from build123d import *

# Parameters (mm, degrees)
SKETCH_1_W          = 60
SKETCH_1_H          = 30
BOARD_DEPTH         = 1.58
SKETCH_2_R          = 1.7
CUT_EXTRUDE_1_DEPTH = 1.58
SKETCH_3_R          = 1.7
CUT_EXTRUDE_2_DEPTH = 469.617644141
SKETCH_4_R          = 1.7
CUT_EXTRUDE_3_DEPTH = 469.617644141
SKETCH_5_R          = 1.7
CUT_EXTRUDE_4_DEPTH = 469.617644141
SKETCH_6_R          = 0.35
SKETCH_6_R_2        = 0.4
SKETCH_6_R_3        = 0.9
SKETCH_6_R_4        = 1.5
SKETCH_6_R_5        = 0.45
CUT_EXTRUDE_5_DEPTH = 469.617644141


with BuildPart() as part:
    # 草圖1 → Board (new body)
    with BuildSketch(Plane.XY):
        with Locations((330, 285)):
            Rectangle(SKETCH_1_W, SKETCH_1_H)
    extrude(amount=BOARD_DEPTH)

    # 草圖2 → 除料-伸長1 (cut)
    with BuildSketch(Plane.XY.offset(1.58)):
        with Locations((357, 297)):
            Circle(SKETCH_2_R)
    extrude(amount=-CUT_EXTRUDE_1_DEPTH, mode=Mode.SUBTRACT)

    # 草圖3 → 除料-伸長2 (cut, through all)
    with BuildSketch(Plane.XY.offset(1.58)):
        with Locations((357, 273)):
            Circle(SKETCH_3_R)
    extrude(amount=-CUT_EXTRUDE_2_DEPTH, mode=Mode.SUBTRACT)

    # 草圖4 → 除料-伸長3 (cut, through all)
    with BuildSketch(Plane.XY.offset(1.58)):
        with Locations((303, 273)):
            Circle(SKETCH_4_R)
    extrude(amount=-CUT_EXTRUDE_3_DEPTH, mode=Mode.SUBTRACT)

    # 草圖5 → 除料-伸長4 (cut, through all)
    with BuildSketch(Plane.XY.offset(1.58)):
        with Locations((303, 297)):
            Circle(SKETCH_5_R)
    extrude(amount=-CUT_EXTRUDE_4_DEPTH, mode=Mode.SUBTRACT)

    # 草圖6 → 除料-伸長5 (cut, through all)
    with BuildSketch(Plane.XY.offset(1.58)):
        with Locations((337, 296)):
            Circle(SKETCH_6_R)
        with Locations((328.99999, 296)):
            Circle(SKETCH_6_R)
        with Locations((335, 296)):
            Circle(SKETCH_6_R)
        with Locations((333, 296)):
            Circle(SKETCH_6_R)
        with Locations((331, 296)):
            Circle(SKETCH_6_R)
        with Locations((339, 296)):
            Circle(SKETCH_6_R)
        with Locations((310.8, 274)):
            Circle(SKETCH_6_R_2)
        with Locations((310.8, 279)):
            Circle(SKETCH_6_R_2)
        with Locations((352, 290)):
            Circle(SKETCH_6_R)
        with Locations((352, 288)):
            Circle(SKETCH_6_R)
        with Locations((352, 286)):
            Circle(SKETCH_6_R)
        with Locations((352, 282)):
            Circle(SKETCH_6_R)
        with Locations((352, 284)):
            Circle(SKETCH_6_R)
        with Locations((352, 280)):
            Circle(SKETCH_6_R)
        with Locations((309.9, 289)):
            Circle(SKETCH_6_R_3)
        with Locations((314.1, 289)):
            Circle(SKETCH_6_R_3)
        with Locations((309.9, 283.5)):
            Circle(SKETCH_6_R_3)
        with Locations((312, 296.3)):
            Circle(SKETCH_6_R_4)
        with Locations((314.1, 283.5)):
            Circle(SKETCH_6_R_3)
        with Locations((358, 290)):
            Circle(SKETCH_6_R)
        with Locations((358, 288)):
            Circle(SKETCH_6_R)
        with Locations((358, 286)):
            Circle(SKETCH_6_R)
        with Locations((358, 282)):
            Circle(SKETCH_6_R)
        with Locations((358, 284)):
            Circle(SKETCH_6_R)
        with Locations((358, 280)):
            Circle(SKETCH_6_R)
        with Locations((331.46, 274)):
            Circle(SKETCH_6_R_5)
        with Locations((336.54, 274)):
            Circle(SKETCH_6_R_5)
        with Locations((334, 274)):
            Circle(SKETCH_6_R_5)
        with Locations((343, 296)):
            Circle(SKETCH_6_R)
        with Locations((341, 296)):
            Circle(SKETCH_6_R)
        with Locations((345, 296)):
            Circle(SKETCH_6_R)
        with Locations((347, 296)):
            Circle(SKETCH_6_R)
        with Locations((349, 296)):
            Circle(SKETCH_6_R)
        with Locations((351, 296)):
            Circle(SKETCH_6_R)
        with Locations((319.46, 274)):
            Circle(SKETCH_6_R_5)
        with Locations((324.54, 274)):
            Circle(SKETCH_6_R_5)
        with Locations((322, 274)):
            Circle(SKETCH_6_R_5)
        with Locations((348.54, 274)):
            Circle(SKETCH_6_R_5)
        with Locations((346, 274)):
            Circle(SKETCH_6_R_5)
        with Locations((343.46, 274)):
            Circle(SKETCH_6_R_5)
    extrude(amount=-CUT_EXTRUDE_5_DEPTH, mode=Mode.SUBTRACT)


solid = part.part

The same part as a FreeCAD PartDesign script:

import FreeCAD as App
import Part
import Sketcher
from FreeCAD import Vector
Q = App.Units.Quantity

doc = App.newDocument("Part")
params = doc.addObject("Spreadsheet::Sheet", "Params")
for row, (alias, value) in enumerate([
    ("sketch1_width", "60 mm"),
    ("sketch1_height", "30 mm"),
    ("pad1_length", "1.58 mm"),
    ("sketch2_diameter", "3.4 mm"),
    ("pocket1_length", "1.58 mm"),
    ("sketch3_diameter", "3.4 mm"),
    ("sketch4_diameter", "3.4 mm"),
    ("sketch5_diameter", "3.4 mm"),
    ("sketch6_diameter", "3 mm"),
    ("sketch6_diameter2", "0.7 mm"),
    ("sketch6_diameter3", "0.8 mm"),
    ("sketch6_diameter4", "1.8 mm"),
    ("sketch6_diameter5", "0.9 mm"),
], start=1):
    params.set(f"A{row}", alias)
    params.set(f"B{row}", "=" + value)
    params.setAlias(f"B{row}", alias)

body = doc.addObject("PartDesign::Body", "Body")

# Sketch on XY plane
sketch1 = doc.addObject("Sketcher::SketchObject", "Sketch")
body.addObject(sketch1)
sketch1.AttachmentSupport = (doc.XY_Plane, [""])
sketch1.MapMode = "FlatFace"
sketch1.addGeometry(Part.LineSegment(Vector(300, 300, 0), Vector(300, 270, 0)), False)
sketch1.addGeometry(Part.LineSegment(Vector(300, 270, 0), Vector(360, 270, 0)), False)
sketch1.addGeometry(Part.LineSegment(Vector(360, 270, 0), Vector(360, 300, 0)), False)
sketch1.addGeometry(Part.LineSegment(Vector(360, 300, 0), Vector(300, 300, 0)), False)
sketch1.addConstraint(Sketcher.Constraint("Coincident", 0, 2, 1, 1))
sketch1.addConstraint(Sketcher.Constraint("Coincident", 1, 2, 2, 1))
sketch1.addConstraint(Sketcher.Constraint("Coincident", 2, 2, 3, 1))
sketch1.addConstraint(Sketcher.Constraint("Coincident", 3, 2, 0, 1))
sketch1.addConstraint(Sketcher.Constraint("Vertical", 0))
sketch1.addConstraint(Sketcher.Constraint("Horizontal", 1))
sketch1.addConstraint(Sketcher.Constraint("Vertical", 2))
sketch1.addConstraint(Sketcher.Constraint("Horizontal", 3))
sketch1.addConstraint(Sketcher.Constraint("DistanceX", 1, 1, 1, 2, Q("60 mm")))
sketch1.addConstraint(Sketcher.Constraint("DistanceY", 0, 2, 0, 1, Q("30 mm")))
sketch1.addConstraint(Sketcher.Constraint("DistanceX", -1, 1, 0, 2, Q("300 mm")))
sketch1.addConstraint(Sketcher.Constraint("DistanceY", -1, 1, 0, 2, Q("270 mm")))
sketch1.setExpression("Constraints[8]", "Params.sketch1_width")
sketch1.setExpression("Constraints[9]", "Params.sketch1_height")
pad1 = doc.addObject("PartDesign::Pad", "Pad")
body.addObject(pad1)
pad1.Profile = sketch1
pad1.setExpression("Length", "Params.pad1_length")

# Sketch on XY plane
sketch2 = doc.addObject("Sketcher::SketchObject", "Sketch001")
body.addObject(sketch2)
sketch2.AttachmentSupport = (doc.XY_Plane, [""])
sketch2.MapMode = "FlatFace"
sketch2.AttachmentOffset = App.Placement(Vector(0, 0, 1.58), App.Rotation())
sketch2.addGeometry(Part.Circle(Vector(357, 297, 0), Vector(0, 0, 1), 1.7), False)
sketch2.addConstraint(Sketcher.Constraint("Diameter", 0, Q("3.4 mm")))
sketch2.addConstraint(Sketcher.Constraint("DistanceX", -1, 1, 0, 3, Q("357 mm")))
sketch2.addConstraint(Sketcher.Constraint("DistanceY", -1, 1, 0, 3, Q("297 mm")))
sketch2.setExpression("Constraints[0]", "Params.sketch2_diameter")
pocket1 = doc.addObject("PartDesign::Pocket", "Pocket")
body.addObject(pocket1)
pocket1.Profile = sketch2
pocket1.setExpression("Length", "Params.pocket1_length")

# Sketch on XY plane
sketch3 = doc.addObject("Sketcher::SketchObject", "Sketch002")
body.addObject(sketch3)
sketch3.AttachmentSupport = (doc.XY_Plane, [""])
sketch3.MapMode = "FlatFace"
sketch3.AttachmentOffset = App.Placement(Vector(0, 0, 1.58), App.Rotation())
sketch3.addGeometry(Part.Circle(Vector(357, 273, 0), Vector(0, 0, 1), 1.7), False)
sketch3.addConstraint(Sketcher.Constraint("Diameter", 0, Q("3.4 mm")))
sketch3.addConstraint(Sketcher.Constraint("DistanceX", -1, 1, 0, 3, Q("357 mm")))
sketch3.addConstraint(Sketcher.Constraint("DistanceY", -1, 1, 0, 3, Q("273 mm")))
sketch3.setExpression("Constraints[0]", "Params.sketch3_diameter")
pocket2 = doc.addObject("PartDesign::Pocket", "Pocket001")
body.addObject(pocket2)
pocket2.Profile = sketch3
pocket2.Type = "ThroughAll"

# Sketch on XY plane
sketch4 = doc.addObject("Sketcher::SketchObject", "Sketch003")
body.addObject(sketch4)
sketch4.AttachmentSupport = (doc.XY_Plane, [""])
sketch4.MapMode = "FlatFace"
sketch4.AttachmentOffset = App.Placement(Vector(0, 0, 1.58), App.Rotation())
sketch4.addGeometry(Part.Circle(Vector(303, 273, 0), Vector(0, 0, 1), 1.7), False)
sketch4.addConstraint(Sketcher.Constraint("Diameter", 0, Q("3.4 mm")))
sketch4.addConstraint(Sketcher.Constraint("DistanceX", -1, 1, 0, 3, Q("303 mm")))
sketch4.addConstraint(Sketcher.Constraint("DistanceY", -1, 1, 0, 3, Q("273 mm")))
sketch4.setExpression("Constraints[0]", "Params.sketch4_diameter")
pocket3 = doc.addObject("PartDesign::Pocket", "Pocket002")
body.addObject(pocket3)
pocket3.Profile = sketch4
pocket3.Type = "ThroughAll"

# Sketch on XY plane
sketch5 = doc.addObject("Sketcher::SketchObject", "Sketch004")
body.addObject(sketch5)
sketch5.AttachmentSupport = (doc.XY_Plane, [""])
sketch5.MapMode = "FlatFace"
sketch5.AttachmentOffset = App.Placement(Vector(0, 0, 1.58), App.Rotation())
sketch5.addGeometry(Part.Circle(Vector(303, 297, 0), Vector(0, 0, 1), 1.7), False)
sketch5.addConstraint(Sketcher.Constraint("Diameter", 0, Q("3.4 mm")))
sketch5.addConstraint(Sketcher.Constraint("DistanceX", -1, 1, 0, 3, Q("303 mm")))
sketch5.addConstraint(Sketcher.Constraint("DistanceY", -1, 1, 0, 3, Q("297 mm")))
sketch5.setExpression("Constraints[0]", "Params.sketch5_diameter")
pocket4 = doc.addObject("PartDesign::Pocket", "Pocket003")
body.addObject(pocket4)
pocket4.Profile = sketch5
pocket4.Type = "ThroughAll"

# Sketch on XY plane
sketch6 = doc.addObject("Sketcher::SketchObject", "Sketch005")
body.addObject(sketch6)
sketch6.AttachmentSupport = (doc.XY_Plane, [""])
sketch6.MapMode = "FlatFace"
sketch6.AttachmentOffset = App.Placement(Vector(0, 0, 1.58), App.Rotation())
sketch6.addGeometry(Part.Circle(Vector(337, 296, 0), Vector(0, 0, 1), 0.35), False)
sketch6.addGeometry(Part.Circle(Vector(328.99999, 296, 0), Vector(0, 0, 1), 0.35), False)
sketch6.addGeometry(Part.Circle(Vector(335, 296, 0), Vector(0, 0, 1), 0.35), False)
sketch6.addGeometry(Part.Circle(Vector(333, 296, 0), Vector(0, 0, 1), 0.35), False)
sketch6.addGeometry(Part.Circle(Vector(331, 296, 0), Vector(0, 0, 1), 0.35), False)
sketch6.addGeometry(Part.Circle(Vector(339, 296, 0), Vector(0, 0, 1), 0.35), False)
sketch6.addGeometry(Part.Circle(Vector(310.8, 274, 0), Vector(0, 0, 1), 0.4), False)
sketch6.addGeometry(Part.Circle(Vector(310.8, 279, 0), Vector(0, 0, 1), 0.4), False)
sketch6.addGeometry(Part.Circle(Vector(352, 290, 0), Vector(0, 0, 1), 0.35), False)
sketch6.addGeometry(Part.Circle(Vector(352, 288, 0), Vector(0, 0, 1), 0.35), False)
sketch6.addGeometry(Part.Circle(Vector(352, 286, 0), Vector(0, 0, 1), 0.35), False)
sketch6.addGeometry(Part.Circle(Vector(352, 282, 0), Vector(0, 0, 1), 0.35), False)
sketch6.addGeometry(Part.Circle(Vector(352, 284, 0), Vector(0, 0, 1), 0.35), False)
sketch6.addGeometry(Part.Circle(Vector(352, 280, 0), Vector(0, 0, 1), 0.35), False)
sketch6.addGeometry(Part.Circle(Vector(309.9, 289, 0), Vector(0, 0, 1), 0.9), False)
sketch6.addGeometry(Part.Circle(Vector(314.1, 289, 0), Vector(0, 0, 1), 0.9), False)
sketch6.addGeometry(Part.Circle(Vector(309.9, 283.5, 0), Vector(0, 0, 1), 0.9), False)
sketch6.addGeometry(Part.Circle(Vector(312, 296.3, 0), Vector(0, 0, 1), 1.5), False)
sketch6.addGeometry(Part.Circle(Vector(314.1, 283.5, 0), Vector(0, 0, 1), 0.9), False)
sketch6.addGeometry(Part.Circle(Vector(358, 290, 0), Vector(0, 0, 1), 0.35), False)
sketch6.addGeometry(Part.Circle(Vector(358, 288, 0), Vector(0, 0, 1), 0.35), False)
sketch6.addGeometry(Part.Circle(Vector(358, 286, 0), Vector(0, 0, 1), 0.35), False)
sketch6.addGeometry(Part.Circle(Vector(358, 282, 0), Vector(0, 0, 1), 0.35), False)
sketch6.addGeometry(Part.Circle(Vector(358, 284, 0), Vector(0, 0, 1), 0.35), False)
sketch6.addGeometry(Part.Circle(Vector(358, 280, 0), Vector(0, 0, 1), 0.35), False)
sketch6.addGeometry(Part.Circle(Vector(331.46, 274, 0), Vector(0, 0, 1), 0.45), False)
sketch6.addGeometry(Part.Circle(Vector(336.54, 274, 0), Vector(0, 0, 1), 0.45), False)
sketch6.addGeometry(Part.Circle(Vector(334, 274, 0), Vector(0, 0, 1), 0.45), False)
sketch6.addGeometry(Part.Circle(Vector(343, 296, 0), Vector(0, 0, 1), 0.35), False)
sketch6.addGeometry(Part.Circle(Vector(341, 296, 0), Vector(0, 0, 1), 0.35), False)
sketch6.addGeometry(Part.Circle(Vector(345, 296, 0), Vector(0, 0, 1), 0.35), False)
sketch6.addGeometry(Part.Circle(Vector(347, 296, 0), Vector(0, 0, 1), 0.35), False)
sketch6.addGeometry(Part.Circle(Vector(349, 296, 0), Vector(0, 0, 1), 0.35), False)
sketch6.addGeometry(Part.Circle(Vector(351, 296, 0), Vector(0, 0, 1), 0.35), False)
sketch6.addGeometry(Part.Circle(Vector(319.46, 274, 0), Vector(0, 0, 1), 0.45), False)
sketch6.addGeometry(Part.Circle(Vector(324.54, 274, 0), Vector(0, 0, 1), 0.45), False)
sketch6.addGeometry(Part.Circle(Vector(322, 274, 0), Vector(0, 0, 1), 0.45), False)
sketch6.addGeometry(Part.Circle(Vector(348.54, 274, 0), Vector(0, 0, 1), 0.45), False)
sketch6.addGeometry(Part.Circle(Vector(346, 274, 0), Vector(0, 0, 1), 0.45), False)
sketch6.addGeometry(Part.Circle(Vector(343.46, 274, 0), Vector(0, 0, 1), 0.45), False)
sketch6.addConstraint(Sketcher.Constraint("Equal", 0, 1))
sketch6.addConstraint(Sketcher.Constraint("Equal", 1, 2))
sketch6.addConstraint(Sketcher.Constraint("Equal", 2, 3))
sketch6.addConstraint(Sketcher.Constraint("Equal", 3, 4))
sketch6.addConstraint(Sketcher.Constraint("Equal", 4, 5))
sketch6.addConstraint(Sketcher.Constraint("Equal", 6, 7))
sketch6.addConstraint(Sketcher.Constraint("Equal", 5, 8))
sketch6.addConstraint(Sketcher.Constraint("Equal", 8, 9))
sketch6.addConstraint(Sketcher.Constraint("Equal", 9, 10))
sketch6.addConstraint(Sketcher.Constraint("Equal", 10, 11))
sketch6.addConstraint(Sketcher.Constraint("Equal", 11, 12))
sketch6.addConstraint(Sketcher.Constraint("Equal", 12, 13))
sketch6.addConstraint(Sketcher.Constraint("Equal", 14, 15))
sketch6.addConstraint(Sketcher.Constraint("Equal", 15, 16))
sketch6.addConstraint(Sketcher.Constraint("Equal", 16, 18))
sketch6.addConstraint(Sketcher.Constraint("Equal", 13, 19))
sketch6.addConstraint(Sketcher.Constraint("Equal", 19, 20))
sketch6.addConstraint(Sketcher.Constraint("Equal", 20, 21))
sketch6.addConstraint(Sketcher.Constraint("Equal", 21, 22))
sketch6.addConstraint(Sketcher.Constraint("Equal", 22, 23))
sketch6.addConstraint(Sketcher.Constraint("Equal", 23, 24))
sketch6.addConstraint(Sketcher.Constraint("Equal", 25, 26))
sketch6.addConstraint(Sketcher.Constraint("Equal", 26, 27))
sketch6.addConstraint(Sketcher.Constraint("Equal", 24, 28))
sketch6.addConstraint(Sketcher.Constraint("Equal", 28, 29))
sketch6.addConstraint(Sketcher.Constraint("Equal", 29, 30))
sketch6.addConstraint(Sketcher.Constraint("Equal", 30, 31))
sketch6.addConstraint(Sketcher.Constraint("Equal", 31, 32))
sketch6.addConstraint(Sketcher.Constraint("Equal", 32, 33))
sketch6.addConstraint(Sketcher.Constraint("Equal", 27, 34))
sketch6.addConstraint(Sketcher.Constraint("Equal", 34, 35))
sketch6.addConstraint(Sketcher.Constraint("Equal", 35, 36))
sketch6.addConstraint(Sketcher.Constraint("Equal", 36, 37))
sketch6.addConstraint(Sketcher.Constraint("Equal", 37, 38))
sketch6.addConstraint(Sketcher.Constraint("Equal", 38, 39))
sketch6.addConstraint(Sketcher.Constraint("Horizontal", 0, 3, 1, 3))
sketch6.addConstraint(Sketcher.Constraint("Horizontal", 1, 3, 2, 3))
sketch6.addConstraint(Sketcher.Constraint("Horizontal", 2, 3, 3, 3))
sketch6.addConstraint(Sketcher.Constraint("Horizontal", 3, 3, 4, 3))
sketch6.addConstraint(Sketcher.Constraint("Horizontal", 4, 3, 5, 3))
sketch6.addConstraint(Sketcher.Constraint("Horizontal", 14, 3, 15, 3))
sketch6.addConstraint(Sketcher.Constraint("Horizontal", 16, 3, 18, 3))
sketch6.addConstraint(Sketcher.Constraint("Horizontal", 8, 3, 19, 3))
sketch6.addConstraint(Sketcher.Constraint("Horizontal", 9, 3, 20, 3))
sketch6.addConstraint(Sketcher.Constraint("Horizontal", 10, 3, 21, 3))
sketch6.addConstraint(Sketcher.Constraint("Horizontal", 11, 3, 22, 3))
sketch6.addConstraint(Sketcher.Constraint("Horizontal", 12, 3, 23, 3))
sketch6.addConstraint(Sketcher.Constraint("Horizontal", 13, 3, 24, 3))
sketch6.addConstraint(Sketcher.Constraint("Horizontal", 6, 3, 25, 3))
sketch6.addConstraint(Sketcher.Constraint("Horizontal", 25, 3, 26, 3))
sketch6.addConstraint(Sketcher.Constraint("Horizontal", 26, 3, 27, 3))
sketch6.addConstraint(Sketcher.Constraint("Horizontal", 5, 3, 28, 3))
sketch6.addConstraint(Sketcher.Constraint("Horizontal", 28, 3, 29, 3))
sketch6.addConstraint(Sketcher.Constraint("Horizontal", 29, 3, 30, 3))
sketch6.addConstraint(Sketcher.Constraint("Horizontal", 30, 3, 31, 3))
sketch6.addConstraint(Sketcher.Constraint("Horizontal", 31, 3, 32, 3))
sketch6.addConstraint(Sketcher.Constraint("Horizontal", 32, 3, 33, 3))
sketch6.addConstraint(Sketcher.Constraint("Horizontal", 27, 3, 34, 3))
sketch6.addConstraint(Sketcher.Constraint("Horizontal", 34, 3, 35, 3))
sketch6.addConstraint(Sketcher.Constraint("Horizontal", 35, 3, 36, 3))
sketch6.addConstraint(Sketcher.Constraint("Horizontal", 36, 3, 37, 3))
sketch6.addConstraint(Sketcher.Constraint("Horizontal", 37, 3, 38, 3))
sketch6.addConstraint(Sketcher.Constraint("Horizontal", 38, 3, 39, 3))
sketch6.addConstraint(Sketcher.Constraint("Vertical", 6, 3, 7, 3))
sketch6.addConstraint(Sketcher.Constraint("Vertical", 8, 3, 9, 3))
sketch6.addConstraint(Sketcher.Constraint("Vertical", 9, 3, 10, 3))
sketch6.addConstraint(Sketcher.Constraint("Vertical", 10, 3, 11, 3))
sketch6.addConstraint(Sketcher.Constraint("Vertical", 11, 3, 12, 3))
sketch6.addConstraint(Sketcher.Constraint("Vertical", 12, 3, 13, 3))
sketch6.addConstraint(Sketcher.Constraint("Vertical", 14, 3, 16, 3))
sketch6.addConstraint(Sketcher.Constraint("Vertical", 15, 3, 18, 3))
sketch6.addConstraint(Sketcher.Constraint("Vertical", 19, 3, 20, 3))
sketch6.addConstraint(Sketcher.Constraint("Vertical", 20, 3, 21, 3))
sketch6.addConstraint(Sketcher.Constraint("Vertical", 21, 3, 22, 3))
sketch6.addConstraint(Sketcher.Constraint("Vertical", 22, 3, 23, 3))
sketch6.addConstraint(Sketcher.Constraint("Vertical", 23, 3, 24, 3))
sketch6.addConstraint(Sketcher.Constraint("Diameter", 17, Q("3 mm")))
sketch6.addConstraint(Sketcher.Constraint("Diameter", 0, Q("0.7 mm")))
sketch6.addConstraint(Sketcher.Constraint("Diameter", 6, Q("0.8 mm")))
sketch6.addConstraint(Sketcher.Constraint("Diameter", 14, Q("1.8 mm")))
sketch6.addConstraint(Sketcher.Constraint("Diameter", 25, Q("0.9 mm")))
sketch6.addConstraint(Sketcher.Constraint("DistanceX", -1, 1, 0, 3, Q("337 mm")))
sketch6.addConstraint(Sketcher.Constraint("DistanceY", -1, 1, 0, 3, Q("296 mm")))
sketch6.addConstraint(Sketcher.Constraint("DistanceX", -1, 1, 2, 3, Q("335 mm")))
sketch6.addConstraint(Sketcher.Constraint("DistanceX", -1, 1, 3, 3, Q("333 mm")))
sketch6.addConstraint(Sketcher.Constraint("DistanceX", -1, 1, 4, 3, Q("331 mm")))
sketch6.addConstraint(Sketcher.Constraint("DistanceX", -1, 1, 5, 3, Q("339 mm")))
sketch6.addConstraint(Sketcher.Constraint("DistanceY", -1, 1, 6, 3, Q("274 mm")))
sketch6.addConstraint(Sketcher.Constraint("DistanceY", -1, 1, 7, 3, Q("279 mm")))
sketch6.addConstraint(Sketcher.Constraint("DistanceX", -1, 1, 8, 3, Q("352 mm")))
sketch6.addConstraint(Sketcher.Constraint("DistanceY", -1, 1, 8, 3, Q("290 mm")))
sketch6.addConstraint(Sketcher.Constraint("DistanceY", -1, 1, 9, 3, Q("288 mm")))
sketch6.addConstraint(Sketcher.Constraint("DistanceY", -1, 1, 10, 3, Q("286 mm")))
sketch6.addConstraint(Sketcher.Constraint("DistanceY", -1, 1, 11, 3, Q("282 mm")))
sketch6.addConstraint(Sketcher.Constraint("DistanceY", -1, 1, 12, 3, Q("284 mm")))
sketch6.addConstraint(Sketcher.Constraint("DistanceY", -1, 1, 13, 3, Q("280 mm")))
sketch6.addConstraint(Sketcher.Constraint("DistanceY", -1, 1, 14, 3, Q("289 mm")))
sketch6.addConstraint(Sketcher.Constraint("DistanceX", -1, 1, 17, 3, Q("312 mm")))
sketch6.addConstraint(Sketcher.Constraint("DistanceX", -1, 1, 19, 3, Q("358 mm")))
sketch6.addConstraint(Sketcher.Constraint("DistanceX", -1, 1, 27, 3, Q("334 mm")))
sketch6.addConstraint(Sketcher.Constraint("DistanceX", -1, 1, 28, 3, Q("343 mm")))
sketch6.addConstraint(Sketcher.Constraint("DistanceX", -1, 1, 29, 3, Q("341 mm")))
sketch6.addConstraint(Sketcher.Constraint("DistanceX", -1, 1, 30, 3, Q("345 mm")))
sketch6.addConstraint(Sketcher.Constraint("DistanceX", -1, 1, 31, 3, Q("347 mm")))
sketch6.addConstraint(Sketcher.Constraint("DistanceX", -1, 1, 32, 3, Q("349 mm")))
sketch6.addConstraint(Sketcher.Constraint("DistanceX", -1, 1, 33, 3, Q("351 mm")))
sketch6.addConstraint(Sketcher.Constraint("DistanceX", -1, 1, 36, 3, Q("322 mm")))
sketch6.addConstraint(Sketcher.Constraint("DistanceX", -1, 1, 38, 3, Q("346 mm")))
sketch6.addConstraint(Sketcher.Constraint("DistanceX", 34, 3, 25, 3, Q("12 mm")))
sketch6.addConstraint(Sketcher.Constraint("DistanceX", 35, 3, 26, 3, Q("12 mm")))
sketch6.addConstraint(Sketcher.Constraint("DistanceX", 26, 3, 37, 3, Q("12 mm")))
sketch6.addConstraint(Sketcher.Constraint("DistanceX", -1, 1, 6, 3, Q("310.8 mm")))
sketch6.addConstraint(Sketcher.Constraint("DistanceX", -1, 1, 14, 3, Q("309.9 mm")))
sketch6.addConstraint(Sketcher.Constraint("DistanceX", -1, 1, 15, 3, Q("314.1 mm")))
sketch6.addConstraint(Sketcher.Constraint("DistanceY", -1, 1, 16, 3, Q("283.5 mm")))
sketch6.addConstraint(Sketcher.Constraint("DistanceY", -1, 1, 17, 3, Q("296.3 mm")))
sketch6.addConstraint(Sketcher.Constraint("DistanceX", -1, 1, 25, 3, Q("331.46 mm")))
sketch6.addConstraint(Sketcher.Constraint("DistanceX", -1, 1, 26, 3, Q("336.54 mm")))
sketch6.addConstraint(Sketcher.Constraint("DistanceX", -1, 1, 39, 3, Q("343.46 mm")))
sketch6.addConstraint(Sketcher.Constraint("DistanceX", -1, 1, 1, 3, Q("328.99999 mm")))
sketch6.setExpression("Constraints[76]", "Params.sketch6_diameter")
sketch6.setExpression("Constraints[77]", "Params.sketch6_diameter2")
sketch6.setExpression("Constraints[78]", "Params.sketch6_diameter3")
sketch6.setExpression("Constraints[79]", "Params.sketch6_diameter4")
sketch6.setExpression("Constraints[80]", "Params.sketch6_diameter5")
pocket5 = doc.addObject("PartDesign::Pocket", "Pocket004")
body.addObject(pocket5)
pocket5.Profile = sketch6
pocket5.Type = "ThroughAll"

doc.recompute()
